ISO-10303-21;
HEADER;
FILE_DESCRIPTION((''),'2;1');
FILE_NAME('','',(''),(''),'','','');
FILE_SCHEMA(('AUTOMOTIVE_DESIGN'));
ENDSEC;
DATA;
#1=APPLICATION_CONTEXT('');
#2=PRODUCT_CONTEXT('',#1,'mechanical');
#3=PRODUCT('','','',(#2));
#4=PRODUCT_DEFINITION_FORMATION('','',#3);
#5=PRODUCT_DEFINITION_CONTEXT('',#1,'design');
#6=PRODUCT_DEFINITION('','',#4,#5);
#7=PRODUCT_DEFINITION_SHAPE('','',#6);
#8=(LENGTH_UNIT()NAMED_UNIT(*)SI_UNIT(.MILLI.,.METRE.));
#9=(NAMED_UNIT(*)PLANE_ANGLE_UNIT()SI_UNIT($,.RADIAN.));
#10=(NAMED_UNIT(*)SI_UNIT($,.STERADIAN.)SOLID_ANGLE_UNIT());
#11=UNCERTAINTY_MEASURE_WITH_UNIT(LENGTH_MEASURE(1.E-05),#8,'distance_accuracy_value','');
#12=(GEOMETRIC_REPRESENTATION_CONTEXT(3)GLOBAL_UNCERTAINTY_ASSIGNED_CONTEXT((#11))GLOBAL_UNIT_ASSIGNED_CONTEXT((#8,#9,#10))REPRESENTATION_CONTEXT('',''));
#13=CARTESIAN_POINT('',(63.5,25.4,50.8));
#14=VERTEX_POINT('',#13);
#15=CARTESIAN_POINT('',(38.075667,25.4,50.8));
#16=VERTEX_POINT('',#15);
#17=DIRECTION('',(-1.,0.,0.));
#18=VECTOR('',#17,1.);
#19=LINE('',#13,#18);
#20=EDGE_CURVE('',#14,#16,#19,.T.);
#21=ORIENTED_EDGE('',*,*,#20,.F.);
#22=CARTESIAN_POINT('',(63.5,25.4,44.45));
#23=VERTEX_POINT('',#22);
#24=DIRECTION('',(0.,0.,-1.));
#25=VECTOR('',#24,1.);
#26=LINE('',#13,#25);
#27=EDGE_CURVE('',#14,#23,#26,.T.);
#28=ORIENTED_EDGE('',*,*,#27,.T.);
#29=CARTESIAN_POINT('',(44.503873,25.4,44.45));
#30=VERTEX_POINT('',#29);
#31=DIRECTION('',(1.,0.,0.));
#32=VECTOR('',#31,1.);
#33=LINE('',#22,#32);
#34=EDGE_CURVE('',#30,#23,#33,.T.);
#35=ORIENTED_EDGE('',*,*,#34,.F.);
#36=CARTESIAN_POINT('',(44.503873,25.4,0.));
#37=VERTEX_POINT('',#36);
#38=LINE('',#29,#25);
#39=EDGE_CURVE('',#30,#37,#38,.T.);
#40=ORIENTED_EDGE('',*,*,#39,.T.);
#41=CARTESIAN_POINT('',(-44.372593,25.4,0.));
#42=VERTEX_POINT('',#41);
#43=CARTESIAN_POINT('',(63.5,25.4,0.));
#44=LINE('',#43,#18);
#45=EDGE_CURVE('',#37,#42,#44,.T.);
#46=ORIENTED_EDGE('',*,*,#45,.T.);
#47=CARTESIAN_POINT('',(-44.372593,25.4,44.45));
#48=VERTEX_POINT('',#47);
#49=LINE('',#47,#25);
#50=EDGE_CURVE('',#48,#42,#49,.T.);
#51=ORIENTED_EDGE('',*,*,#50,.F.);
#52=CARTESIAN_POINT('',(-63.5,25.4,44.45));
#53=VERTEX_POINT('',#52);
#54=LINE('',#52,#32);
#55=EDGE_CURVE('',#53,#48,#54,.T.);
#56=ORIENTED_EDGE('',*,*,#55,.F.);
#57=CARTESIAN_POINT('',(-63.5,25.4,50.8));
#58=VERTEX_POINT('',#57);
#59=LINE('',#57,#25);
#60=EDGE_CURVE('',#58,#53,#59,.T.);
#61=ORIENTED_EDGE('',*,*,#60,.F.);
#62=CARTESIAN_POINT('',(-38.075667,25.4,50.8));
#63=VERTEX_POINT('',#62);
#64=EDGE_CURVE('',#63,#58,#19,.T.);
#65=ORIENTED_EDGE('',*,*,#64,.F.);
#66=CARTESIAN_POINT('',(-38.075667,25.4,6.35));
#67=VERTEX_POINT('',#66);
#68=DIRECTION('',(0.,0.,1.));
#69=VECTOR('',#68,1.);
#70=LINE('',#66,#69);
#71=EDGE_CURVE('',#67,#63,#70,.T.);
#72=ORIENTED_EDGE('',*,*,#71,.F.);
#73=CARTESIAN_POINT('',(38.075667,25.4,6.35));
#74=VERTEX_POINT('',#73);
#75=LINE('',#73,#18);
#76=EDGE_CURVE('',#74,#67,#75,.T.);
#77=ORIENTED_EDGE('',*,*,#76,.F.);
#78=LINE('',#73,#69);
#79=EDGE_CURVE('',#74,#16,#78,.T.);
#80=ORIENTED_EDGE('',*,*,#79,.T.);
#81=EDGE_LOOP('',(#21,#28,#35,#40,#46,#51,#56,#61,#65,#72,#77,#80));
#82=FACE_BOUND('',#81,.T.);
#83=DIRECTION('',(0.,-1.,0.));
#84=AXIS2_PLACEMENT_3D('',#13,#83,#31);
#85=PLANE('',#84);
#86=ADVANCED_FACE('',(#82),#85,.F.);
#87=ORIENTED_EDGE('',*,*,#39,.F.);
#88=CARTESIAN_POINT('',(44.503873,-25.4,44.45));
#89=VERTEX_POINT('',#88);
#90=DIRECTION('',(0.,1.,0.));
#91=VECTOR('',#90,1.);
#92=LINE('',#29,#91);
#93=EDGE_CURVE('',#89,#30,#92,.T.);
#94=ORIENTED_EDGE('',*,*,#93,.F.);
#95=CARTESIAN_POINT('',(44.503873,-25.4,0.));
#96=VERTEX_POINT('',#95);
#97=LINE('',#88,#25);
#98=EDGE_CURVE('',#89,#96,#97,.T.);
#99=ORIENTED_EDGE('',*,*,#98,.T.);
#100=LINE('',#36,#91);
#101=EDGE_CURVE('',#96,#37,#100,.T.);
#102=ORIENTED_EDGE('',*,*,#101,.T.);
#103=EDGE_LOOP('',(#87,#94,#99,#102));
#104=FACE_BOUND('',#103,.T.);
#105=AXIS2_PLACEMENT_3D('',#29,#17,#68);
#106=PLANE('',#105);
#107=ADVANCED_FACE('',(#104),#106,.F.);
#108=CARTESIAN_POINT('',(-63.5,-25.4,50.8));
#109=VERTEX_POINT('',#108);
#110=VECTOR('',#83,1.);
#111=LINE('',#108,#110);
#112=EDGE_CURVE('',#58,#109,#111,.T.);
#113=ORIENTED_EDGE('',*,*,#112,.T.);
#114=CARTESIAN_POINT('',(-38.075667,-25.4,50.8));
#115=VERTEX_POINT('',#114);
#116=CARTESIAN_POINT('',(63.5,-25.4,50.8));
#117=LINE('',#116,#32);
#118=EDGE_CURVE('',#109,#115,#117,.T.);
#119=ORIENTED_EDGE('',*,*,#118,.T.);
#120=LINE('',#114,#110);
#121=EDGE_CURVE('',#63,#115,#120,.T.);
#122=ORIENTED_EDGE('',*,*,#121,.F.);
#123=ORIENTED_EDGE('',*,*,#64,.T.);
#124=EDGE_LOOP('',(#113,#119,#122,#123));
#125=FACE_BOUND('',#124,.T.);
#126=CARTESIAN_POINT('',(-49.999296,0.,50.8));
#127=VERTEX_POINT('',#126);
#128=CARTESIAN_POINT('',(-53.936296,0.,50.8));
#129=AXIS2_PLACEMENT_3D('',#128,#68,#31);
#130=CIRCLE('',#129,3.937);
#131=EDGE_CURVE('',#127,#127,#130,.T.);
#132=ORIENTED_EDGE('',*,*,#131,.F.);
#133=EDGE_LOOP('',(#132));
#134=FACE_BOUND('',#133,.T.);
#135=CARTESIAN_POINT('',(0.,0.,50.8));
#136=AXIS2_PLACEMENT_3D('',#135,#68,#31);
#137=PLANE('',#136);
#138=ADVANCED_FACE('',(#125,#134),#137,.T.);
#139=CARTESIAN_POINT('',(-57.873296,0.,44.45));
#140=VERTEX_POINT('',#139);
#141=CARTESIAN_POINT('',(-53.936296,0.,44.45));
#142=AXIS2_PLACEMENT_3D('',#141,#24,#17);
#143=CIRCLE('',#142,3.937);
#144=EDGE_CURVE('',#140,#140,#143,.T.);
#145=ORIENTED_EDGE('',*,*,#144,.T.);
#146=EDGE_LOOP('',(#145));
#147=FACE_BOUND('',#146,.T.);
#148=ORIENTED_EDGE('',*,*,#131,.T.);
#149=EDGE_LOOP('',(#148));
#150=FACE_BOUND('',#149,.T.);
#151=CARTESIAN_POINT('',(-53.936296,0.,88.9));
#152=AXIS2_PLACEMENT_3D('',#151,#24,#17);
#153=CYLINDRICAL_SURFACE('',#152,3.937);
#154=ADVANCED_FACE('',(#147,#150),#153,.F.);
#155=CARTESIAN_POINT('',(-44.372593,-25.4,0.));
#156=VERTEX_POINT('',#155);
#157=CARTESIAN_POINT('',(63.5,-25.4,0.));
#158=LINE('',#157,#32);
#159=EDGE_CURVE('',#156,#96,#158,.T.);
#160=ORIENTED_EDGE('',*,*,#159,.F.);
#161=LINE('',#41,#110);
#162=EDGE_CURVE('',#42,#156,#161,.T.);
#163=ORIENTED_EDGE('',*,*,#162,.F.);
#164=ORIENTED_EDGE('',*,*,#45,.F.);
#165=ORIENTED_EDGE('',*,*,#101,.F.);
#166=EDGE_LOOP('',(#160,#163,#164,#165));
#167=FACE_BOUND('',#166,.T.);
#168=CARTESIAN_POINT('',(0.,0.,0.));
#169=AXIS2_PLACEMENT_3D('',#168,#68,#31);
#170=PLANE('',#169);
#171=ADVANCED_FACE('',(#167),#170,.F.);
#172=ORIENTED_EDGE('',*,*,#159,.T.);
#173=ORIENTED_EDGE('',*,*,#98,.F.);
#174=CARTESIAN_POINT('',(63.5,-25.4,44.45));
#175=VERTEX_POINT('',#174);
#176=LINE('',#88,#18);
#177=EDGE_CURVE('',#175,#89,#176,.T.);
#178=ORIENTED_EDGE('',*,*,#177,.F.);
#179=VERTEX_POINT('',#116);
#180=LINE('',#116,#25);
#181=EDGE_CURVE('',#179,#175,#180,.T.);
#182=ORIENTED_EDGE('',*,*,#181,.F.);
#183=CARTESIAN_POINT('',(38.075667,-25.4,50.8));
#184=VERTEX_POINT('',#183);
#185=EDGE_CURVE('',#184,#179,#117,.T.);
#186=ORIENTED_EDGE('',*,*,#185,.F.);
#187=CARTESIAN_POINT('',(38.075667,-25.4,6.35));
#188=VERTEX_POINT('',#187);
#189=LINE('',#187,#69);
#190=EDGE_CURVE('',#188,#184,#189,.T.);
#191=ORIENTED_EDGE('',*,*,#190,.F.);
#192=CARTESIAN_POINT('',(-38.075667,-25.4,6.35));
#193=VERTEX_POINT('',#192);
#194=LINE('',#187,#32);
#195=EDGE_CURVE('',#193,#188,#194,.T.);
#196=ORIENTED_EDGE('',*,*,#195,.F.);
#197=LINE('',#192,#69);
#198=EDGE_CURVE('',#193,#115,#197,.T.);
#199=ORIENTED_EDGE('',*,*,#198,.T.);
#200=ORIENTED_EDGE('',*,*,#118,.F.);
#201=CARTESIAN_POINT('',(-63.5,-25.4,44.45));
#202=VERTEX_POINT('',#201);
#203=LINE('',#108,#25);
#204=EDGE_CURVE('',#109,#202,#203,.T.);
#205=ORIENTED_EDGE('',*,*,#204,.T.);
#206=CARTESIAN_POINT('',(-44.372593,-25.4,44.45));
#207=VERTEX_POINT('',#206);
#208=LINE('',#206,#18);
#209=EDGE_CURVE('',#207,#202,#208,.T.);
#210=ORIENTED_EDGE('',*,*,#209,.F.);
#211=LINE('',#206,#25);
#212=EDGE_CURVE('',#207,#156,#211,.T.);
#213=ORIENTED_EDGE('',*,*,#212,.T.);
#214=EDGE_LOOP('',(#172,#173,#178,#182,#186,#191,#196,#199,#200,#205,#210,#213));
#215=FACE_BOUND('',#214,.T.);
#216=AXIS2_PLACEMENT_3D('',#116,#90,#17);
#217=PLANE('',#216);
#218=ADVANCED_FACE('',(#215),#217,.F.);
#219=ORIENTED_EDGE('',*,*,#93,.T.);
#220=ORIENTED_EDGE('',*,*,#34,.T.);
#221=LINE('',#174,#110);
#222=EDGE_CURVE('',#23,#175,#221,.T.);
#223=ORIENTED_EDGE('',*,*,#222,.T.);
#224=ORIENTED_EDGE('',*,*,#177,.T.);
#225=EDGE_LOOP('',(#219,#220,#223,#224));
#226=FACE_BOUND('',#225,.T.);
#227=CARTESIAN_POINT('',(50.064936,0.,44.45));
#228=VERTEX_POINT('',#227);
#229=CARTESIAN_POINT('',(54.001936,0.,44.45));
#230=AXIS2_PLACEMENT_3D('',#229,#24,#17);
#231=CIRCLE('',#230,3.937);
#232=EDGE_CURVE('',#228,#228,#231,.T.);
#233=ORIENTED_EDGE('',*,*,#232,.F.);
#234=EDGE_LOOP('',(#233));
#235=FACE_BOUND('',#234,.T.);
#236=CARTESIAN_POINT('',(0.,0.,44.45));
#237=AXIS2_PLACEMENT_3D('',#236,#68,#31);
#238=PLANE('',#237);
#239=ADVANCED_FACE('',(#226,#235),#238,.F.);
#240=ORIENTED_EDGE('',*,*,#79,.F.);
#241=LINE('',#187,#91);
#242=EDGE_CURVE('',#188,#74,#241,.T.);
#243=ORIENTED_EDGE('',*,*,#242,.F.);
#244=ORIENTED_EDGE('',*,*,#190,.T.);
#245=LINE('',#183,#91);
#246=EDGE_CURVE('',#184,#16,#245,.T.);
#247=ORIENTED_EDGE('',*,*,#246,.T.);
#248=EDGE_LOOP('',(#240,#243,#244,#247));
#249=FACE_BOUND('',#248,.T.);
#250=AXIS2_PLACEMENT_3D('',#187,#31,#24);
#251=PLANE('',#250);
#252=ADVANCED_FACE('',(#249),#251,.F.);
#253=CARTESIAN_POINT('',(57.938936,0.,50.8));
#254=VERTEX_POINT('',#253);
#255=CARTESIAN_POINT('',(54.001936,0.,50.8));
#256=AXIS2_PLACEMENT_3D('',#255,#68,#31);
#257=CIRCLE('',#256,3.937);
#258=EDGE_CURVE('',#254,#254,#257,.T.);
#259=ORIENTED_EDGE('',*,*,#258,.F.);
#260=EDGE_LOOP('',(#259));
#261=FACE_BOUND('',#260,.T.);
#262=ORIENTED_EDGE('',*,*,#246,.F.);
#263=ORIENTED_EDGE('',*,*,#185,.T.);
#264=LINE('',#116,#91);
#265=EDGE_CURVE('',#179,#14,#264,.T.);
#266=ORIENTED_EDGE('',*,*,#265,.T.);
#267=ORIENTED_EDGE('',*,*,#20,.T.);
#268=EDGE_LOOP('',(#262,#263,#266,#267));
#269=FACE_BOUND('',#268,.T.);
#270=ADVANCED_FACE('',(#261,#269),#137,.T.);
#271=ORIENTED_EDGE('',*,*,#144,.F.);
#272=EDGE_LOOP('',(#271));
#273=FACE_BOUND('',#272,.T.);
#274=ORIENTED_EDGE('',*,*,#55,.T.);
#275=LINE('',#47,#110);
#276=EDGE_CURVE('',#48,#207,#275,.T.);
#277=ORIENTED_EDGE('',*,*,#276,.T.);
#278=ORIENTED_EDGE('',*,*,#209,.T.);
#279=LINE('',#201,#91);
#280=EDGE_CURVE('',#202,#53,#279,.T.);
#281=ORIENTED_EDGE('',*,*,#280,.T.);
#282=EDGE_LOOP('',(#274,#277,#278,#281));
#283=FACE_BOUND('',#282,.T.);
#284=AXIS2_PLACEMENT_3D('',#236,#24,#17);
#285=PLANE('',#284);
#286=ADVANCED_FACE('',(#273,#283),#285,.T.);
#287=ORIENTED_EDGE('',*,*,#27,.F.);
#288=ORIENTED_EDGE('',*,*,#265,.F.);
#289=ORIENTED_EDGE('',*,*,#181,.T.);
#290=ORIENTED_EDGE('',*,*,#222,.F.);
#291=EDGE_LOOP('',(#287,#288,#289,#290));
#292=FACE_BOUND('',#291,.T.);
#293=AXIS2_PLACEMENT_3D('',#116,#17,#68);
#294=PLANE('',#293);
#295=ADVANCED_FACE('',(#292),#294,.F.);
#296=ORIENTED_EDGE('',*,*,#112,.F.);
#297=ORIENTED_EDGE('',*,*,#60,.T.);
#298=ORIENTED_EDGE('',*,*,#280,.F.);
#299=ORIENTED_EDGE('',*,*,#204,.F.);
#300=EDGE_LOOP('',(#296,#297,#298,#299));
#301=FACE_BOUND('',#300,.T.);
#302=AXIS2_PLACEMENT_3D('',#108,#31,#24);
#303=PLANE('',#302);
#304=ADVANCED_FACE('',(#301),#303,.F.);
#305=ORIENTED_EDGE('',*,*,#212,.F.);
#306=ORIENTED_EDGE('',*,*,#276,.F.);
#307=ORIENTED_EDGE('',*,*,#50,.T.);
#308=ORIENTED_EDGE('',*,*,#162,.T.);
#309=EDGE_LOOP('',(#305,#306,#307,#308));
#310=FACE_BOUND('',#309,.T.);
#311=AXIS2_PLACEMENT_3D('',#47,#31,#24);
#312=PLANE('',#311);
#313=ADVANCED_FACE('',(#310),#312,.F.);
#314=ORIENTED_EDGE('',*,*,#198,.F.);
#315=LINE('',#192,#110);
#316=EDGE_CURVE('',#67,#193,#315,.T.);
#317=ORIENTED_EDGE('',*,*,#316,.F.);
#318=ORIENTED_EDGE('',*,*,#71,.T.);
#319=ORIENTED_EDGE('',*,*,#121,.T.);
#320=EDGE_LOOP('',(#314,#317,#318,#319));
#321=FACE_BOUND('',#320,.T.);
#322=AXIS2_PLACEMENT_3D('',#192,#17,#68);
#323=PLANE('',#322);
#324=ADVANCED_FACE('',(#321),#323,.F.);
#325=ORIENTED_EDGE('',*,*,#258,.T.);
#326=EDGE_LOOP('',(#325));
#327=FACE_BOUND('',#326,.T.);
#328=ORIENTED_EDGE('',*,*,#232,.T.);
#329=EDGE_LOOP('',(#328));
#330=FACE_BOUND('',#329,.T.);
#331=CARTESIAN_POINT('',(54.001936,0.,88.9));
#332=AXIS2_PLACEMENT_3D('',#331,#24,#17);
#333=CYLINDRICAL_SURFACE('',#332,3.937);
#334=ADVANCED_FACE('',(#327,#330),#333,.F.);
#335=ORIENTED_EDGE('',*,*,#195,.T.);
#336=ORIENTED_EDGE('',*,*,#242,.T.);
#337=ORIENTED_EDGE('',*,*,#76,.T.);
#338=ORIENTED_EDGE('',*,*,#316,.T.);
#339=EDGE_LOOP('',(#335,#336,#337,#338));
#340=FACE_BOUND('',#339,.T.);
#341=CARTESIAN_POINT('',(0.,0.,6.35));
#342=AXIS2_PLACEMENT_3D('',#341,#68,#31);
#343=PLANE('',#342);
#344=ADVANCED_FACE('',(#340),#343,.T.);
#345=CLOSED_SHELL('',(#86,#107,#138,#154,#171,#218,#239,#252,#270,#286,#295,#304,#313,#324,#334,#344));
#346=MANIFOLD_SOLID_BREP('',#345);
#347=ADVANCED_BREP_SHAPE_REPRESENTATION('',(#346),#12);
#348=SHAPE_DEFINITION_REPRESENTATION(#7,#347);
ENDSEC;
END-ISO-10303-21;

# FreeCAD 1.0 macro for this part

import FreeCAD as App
import Part
import Sketcher

V = App.Vector
Q = App.Units.Quantity


def add_polygon(sketch, points):
    """Adds a closed chain of lines whose ends are joined by coincident constraints."""
    first, n = sketch.GeometryCount, len(points)
    for a, b in zip(points, points[1:] + points[:1]):
        sketch.addGeometry(Part.LineSegment(App.Vector(*a, 0), App.Vector(*b, 0)), False)
    for i in range(n):
        sketch.addConstraint(Sketcher.Constraint("Coincident", first + i, 2, first + (i + 1) % n, 1))

doc = App.newDocument("Part")
params = doc.addObject("Spreadsheet::Sheet", "Params")
for row, (alias, value) in enumerate([
    ("sketch1_width", "5 in"),
    ("sketch1_height", "2 in"),
    ("pad1_length", "2 in"),
    ("sketch2_height", "2 in"),
    ("pocket1_length", "1.75 in"),
    ("sketch3_height", "2 in"),
    ("pocket2_length", "1.75 in"),
    ("sketch4_diameter", "0.31 in"),
    ("pocket3_length", "1.75 in"),
    ("sketch5_diameter", "0.31 in"),
    ("pocket4_length", "1.75 in"),
], start=1):
    params.set(f"A{row}", alias)
    params.set(f"B{row}", "=" + value)
    params.setAlias(f"B{row}", alias)

body = doc.addObject("PartDesign::Body", "Body")

# Sketch on XY plane
sketch1 = doc.addObject("Sketcher::SketchObject", "Sketch")
body.addObject(sketch1)
sketch1.AttachmentSupport = (doc.XY_Plane, [""])
sketch1.MapMode = "FlatFace"
add_polygon(sketch1, [(-63.5, 25.4), (-63.5, -25.4), (63.5, -25.4), (63.5, 25.4)])  # lines 0-3
sketch1.addConstraint([
    Sketcher.Constraint("Vertical", 0),
    Sketcher.Constraint("Horizontal", 1),
    Sketcher.Constraint("Vertical", 2),
    Sketcher.Constraint("Horizontal", 3),
    Sketcher.Constraint("Symmetric", 0, 2, 2, 2, -1, 1),
    Sketcher.Constraint("DistanceX", 1, 1, 1, 2, Q("5 in")),
    Sketcher.Constraint("DistanceY", 0, 2, 0, 1, Q("2 in")),
])
sketch1.setExpression("Constraints[9]", "Params.sketch1_width")
sketch1.setExpression("Constraints[10]", "Params.sketch1_height")
pad1 = doc.addObject("PartDesign::Pad", "Pad")
body.addObject(pad1)
pad1.Profile = sketch1
pad1.setExpression("Length", "Params.pad1_length")

# Sketch on XY plane
sketch2 = doc.addObject("Sketcher::SketchObject", "Sketch001")
body.addObject(sketch2)
sketch2.AttachmentSupport = (doc.XY_Plane, [""])
sketch2.MapMode = "FlatFace"
add_polygon(sketch2, [(63.5, 25.4), (63.5, -25.4), (44.503873, -25.4), (44.503873, 25.4)])  # lines 0-3
add_polygon(sketch2, [(-44.372593, 25.4), (-44.372593, -25.4), (-63.5, -25.4), (-63.5, 25.4)])  # lines 4-7
sketch2.addConstraint([
    Sketcher.Constraint("Vertical", 0),
    Sketcher.Constraint("Horizontal", 1),
    Sketcher.Constraint("Vertical", 2),
    Sketcher.Constraint("Horizontal", 3),
    Sketcher.Constraint("Vertical", 4),
    Sketcher.Constraint("Horizontal", 5),
    Sketcher.Constraint("Vertical", 6),
    Sketcher.Constraint("Horizontal", 7),
    Sketcher.Constraint("Symmetric", 3, 2, 5, 2, -1, 1),
    Sketcher.Constraint("Horizontal", 1, 2, 4, 2),
    Sketcher.Constraint("Horizontal", 3, 2, 6, 2),
    Sketcher.Constraint("DistanceY", 0, 2, 0, 1, Q("2 in")),
    Sketcher.Constraint("DistanceX", 5, 2, 0, 2, Q("5 in")),
    Sketcher.Constraint("DistanceX", 1, 2, 1, 1, 18.996127),
    Sketcher.Constraint("DistanceX", 5, 2, 5, 1, 19.127407),
])
sketch2.setExpression("Constraints[19]", "Params.sketch2_height")
pocket1 = doc.addObject("PartDesign::Pocket", "Pocket")
body.addObject(pocket1)
pocket1.Profile = sketch2
pocket1.setExpression("Length", "Params.pocket1_length")
pocket1.Reversed = True

# Sketch on XY plane
sketch3 = doc.addObject("Sketcher::SketchObject", "Sketch002")
body.addObject(sketch3)
sketch3.AttachmentSupport = (doc.XY_Plane, [""])
sketch3.MapMode = "FlatFace"
sketch3.AttachmentOffset = App.Placement(V(0, 0, 2 * 25.4), App.Rotation())
add_polygon(sketch3, [(-38.075667, 25.4), (-38.075667, -25.4), (38.075667, -25.4), (38.075667, 25.4)])  # lines 0-3
sketch3.addConstraint([
    Sketcher.Constraint("Vertical", 0),
    Sketcher.Constraint("Horizontal", 1),
    Sketcher.Constraint("Vertical", 2),
    Sketcher.Constraint("Horizontal", 3),
    Sketcher.Constraint("Symmetric", 0, 2, 2, 2, -1, 1),
    Sketcher.Constraint("DistanceY", 0, 2, 0, 1, Q("2 in")),
    Sketcher.Constraint("DistanceX", 1, 1, 1, 2, 76.151334),
])
sketch3.setExpression("Constraints[9]", "Params.sketch3_height")
pocket2 = doc.addObject("PartDesign::Pocket", "Pocket001")
body.addObject(pocket2)
pocket2.Profile = sketch3
pocket2.setExpression("Length", "Params.pocket2_length")

# Sketch on XY plane
sketch4 = doc.addObject("Sketcher::SketchObject", "Sketch003")
body.addObject(sketch4)
sketch4.AttachmentSupport = (doc.XY_Plane, [""])
sketch4.MapMode = "FlatFace"
sketch4.AttachmentOffset = App.Placement(V(0, 0, 1.75 * 25.4), App.Rotation())
sketch4.addGeometry(Part.Circle(V(54.001936, 0, 0), V(0, 0, 1), 3.937), False)
sketch4.addConstraint([
    Sketcher.Constraint("PointOnObject", 0, 3, -1),
    Sketcher.Constraint("Diameter", 0, Q("0.31 in")),
    Sketcher.Constraint("DistanceX", -1, 1, 0, 3, 54.001936),
])
sketch4.setExpression("Constraints[1]", "Params.sketch4_diameter")
pocket3 = doc.addObject("PartDesign::Pocket", "Pocket002")
body.addObject(pocket3)
pocket3.Profile = sketch4
pocket3.setExpression("Length", "Params.pocket3_length")
pocket3.Reversed = True

# Sketch on XY plane
sketch5 = doc.addObject("Sketcher::SketchObject", "Sketch004")
body.addObject(sketch5)
sketch5.AttachmentSupport = (doc.XY_Plane, [""])
sketch5.MapMode = "FlatFace"
sketch5.AttachmentOffset = App.Placement(V(0, 0, 1.75 * 25.4), App.Rotation())
sketch5.addGeometry(Part.Circle(V(-53.936296, 0, 0), V(0, 0, 1), 3.937), False)
sketch5.addConstraint([
    Sketcher.Constraint("PointOnObject", 0, 3, -1),
    Sketcher.Constraint("Diameter", 0, Q("0.31 in")),
    Sketcher.Constraint("DistanceX", 0, 3, -1, 1, 53.936296),
])
sketch5.setExpression("Constraints[1]", "Params.sketch5_diameter")
pocket4 = doc.addObject("PartDesign::Pocket", "Pocket003")
body.addObject(pocket4)
pocket4.Profile = sketch5
pocket4.setExpression("Length", "Params.pocket4_length")
pocket4.Reversed = True

doc.recompute()
